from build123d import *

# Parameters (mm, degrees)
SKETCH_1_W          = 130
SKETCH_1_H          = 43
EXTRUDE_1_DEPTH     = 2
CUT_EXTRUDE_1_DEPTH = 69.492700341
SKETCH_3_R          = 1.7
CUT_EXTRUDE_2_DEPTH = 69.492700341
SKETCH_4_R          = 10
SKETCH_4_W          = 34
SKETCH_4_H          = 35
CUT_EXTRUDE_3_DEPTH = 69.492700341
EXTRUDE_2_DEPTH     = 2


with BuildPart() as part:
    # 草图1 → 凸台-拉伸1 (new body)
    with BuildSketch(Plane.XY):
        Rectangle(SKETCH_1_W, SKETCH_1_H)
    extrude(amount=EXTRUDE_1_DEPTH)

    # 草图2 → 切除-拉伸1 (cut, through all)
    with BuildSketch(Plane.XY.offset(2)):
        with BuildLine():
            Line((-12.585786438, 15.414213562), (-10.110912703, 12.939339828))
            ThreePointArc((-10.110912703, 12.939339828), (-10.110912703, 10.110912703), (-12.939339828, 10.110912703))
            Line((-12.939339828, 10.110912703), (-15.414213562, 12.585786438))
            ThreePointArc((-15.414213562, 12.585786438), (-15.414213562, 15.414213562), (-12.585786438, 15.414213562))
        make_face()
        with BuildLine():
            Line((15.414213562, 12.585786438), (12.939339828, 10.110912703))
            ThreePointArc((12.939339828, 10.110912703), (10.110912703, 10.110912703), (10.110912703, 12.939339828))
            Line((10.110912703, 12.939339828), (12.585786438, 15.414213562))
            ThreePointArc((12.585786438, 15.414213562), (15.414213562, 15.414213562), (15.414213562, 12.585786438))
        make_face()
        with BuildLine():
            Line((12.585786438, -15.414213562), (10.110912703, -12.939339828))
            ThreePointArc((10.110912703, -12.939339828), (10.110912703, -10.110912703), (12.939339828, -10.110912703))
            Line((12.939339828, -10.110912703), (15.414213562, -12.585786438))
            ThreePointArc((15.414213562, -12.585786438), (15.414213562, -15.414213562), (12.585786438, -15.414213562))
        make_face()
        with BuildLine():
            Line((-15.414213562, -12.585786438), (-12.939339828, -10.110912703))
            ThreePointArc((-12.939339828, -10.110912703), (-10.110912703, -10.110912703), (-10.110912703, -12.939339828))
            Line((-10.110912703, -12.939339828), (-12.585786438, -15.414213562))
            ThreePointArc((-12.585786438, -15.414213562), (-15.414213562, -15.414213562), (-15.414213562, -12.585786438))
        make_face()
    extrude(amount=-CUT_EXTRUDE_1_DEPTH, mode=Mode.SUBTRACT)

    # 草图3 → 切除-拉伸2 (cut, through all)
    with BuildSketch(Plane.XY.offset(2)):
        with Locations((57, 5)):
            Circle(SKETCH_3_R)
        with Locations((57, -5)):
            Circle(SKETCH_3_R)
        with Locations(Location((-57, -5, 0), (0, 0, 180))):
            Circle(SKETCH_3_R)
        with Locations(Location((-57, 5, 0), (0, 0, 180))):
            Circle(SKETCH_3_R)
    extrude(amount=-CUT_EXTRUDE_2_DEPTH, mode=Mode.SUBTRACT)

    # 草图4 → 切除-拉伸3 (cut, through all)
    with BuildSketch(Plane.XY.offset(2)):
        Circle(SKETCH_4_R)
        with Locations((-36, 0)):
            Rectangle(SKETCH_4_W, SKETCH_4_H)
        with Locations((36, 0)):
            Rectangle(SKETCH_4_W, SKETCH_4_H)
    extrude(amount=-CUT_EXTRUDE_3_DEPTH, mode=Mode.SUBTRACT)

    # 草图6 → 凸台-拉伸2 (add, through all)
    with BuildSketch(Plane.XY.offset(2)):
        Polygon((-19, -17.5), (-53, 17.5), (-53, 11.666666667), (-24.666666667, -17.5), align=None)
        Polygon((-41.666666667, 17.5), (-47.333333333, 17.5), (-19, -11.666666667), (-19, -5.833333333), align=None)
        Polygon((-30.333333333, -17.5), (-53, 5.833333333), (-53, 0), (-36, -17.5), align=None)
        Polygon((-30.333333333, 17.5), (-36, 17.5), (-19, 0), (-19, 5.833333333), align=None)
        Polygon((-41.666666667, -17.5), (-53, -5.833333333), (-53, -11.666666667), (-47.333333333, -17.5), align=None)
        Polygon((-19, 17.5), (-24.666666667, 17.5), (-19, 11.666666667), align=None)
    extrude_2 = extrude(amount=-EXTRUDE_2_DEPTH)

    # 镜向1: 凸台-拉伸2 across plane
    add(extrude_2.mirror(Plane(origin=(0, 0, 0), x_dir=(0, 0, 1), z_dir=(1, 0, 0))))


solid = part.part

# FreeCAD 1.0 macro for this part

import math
import FreeCAD as App
import Part
import Sketcher

doc = App.newDocument("Part")
body = doc.addObject("PartDesign::Body", "Body")

# Sketch on XY plane
sketch1 = doc.addObject("Sketcher::SketchObject", "Sketch")
body.addObject(sketch1)
sketch1.AttachmentSupport = (doc.XY_Plane, [""])
sketch1.MapMode = "FlatFace"
sketch1.addGeometry([
    Part.LineSegment(App.Vector(-65, 22, 0), App.Vector(-65, -22, 0)),
    Part.LineSegment(App.Vector(-65, -22, 0), App.Vector(65, -22, 0)),
    Part.LineSegment(App.Vector(65, -22, 0), App.Vector(65, 22, 0)),
    Part.LineSegment(App.Vector(65, 22, 0), App.Vector(-65, 22, 0)),
], False)
sketch1.addConstraint([
    Sketcher.Constraint("Coincident", 0, 2, 1, 1),
    Sketcher.Constraint("Coincident", 1, 2, 2, 1),
    Sketcher.Constraint("Coincident", 2, 2, 3, 1),
    Sketcher.Constraint("Coincident", 3, 2, 0, 1),
    Sketcher.Constraint("Vertical", 0),
    Sketcher.Constraint("Horizontal", 1),
    Sketcher.Constraint("Vertical", 2),
    Sketcher.Constraint("Horizontal", 3),
    Sketcher.Constraint("Symmetric", 0, 2, 2, 2, -1, 1),
    Sketcher.Constraint("DistanceX", 1, 1, 1, 2, 130.0),
    Sketcher.Constraint("DistanceY", 0, 2, 0, 1, 43.0),
])
pad1 = doc.addObject("PartDesign::Pad", "Pad")
body.addObject(pad1)
pad1.Profile = sketch1
pad1.Length = 2

# Sketch on XY plane
sketch2 = doc.addObject("Sketcher::SketchObject", "Sketch001")
body.addObject(sketch2)
sketch2.AttachmentSupport = (doc.XY_Plane, [""])
sketch2.MapMode = "FlatFace"
sketch2.AttachmentOffset = App.Placement(App.Vector(0, 0, 2), App.Rotation())
sketch2.addGeometry([
    Part.LineSegment(App.Vector(-10.1, 12.9, 0), App.Vector(-12.6, 15.4, 0)),  # 0
    Part.ArcOfCircle(Part.Circle(App.Vector(-14, 14, 0), App.Vector(0, 0, 1), 2), math.radians(45), math.radians(225)),  # 1
    Part.LineSegment(App.Vector(-15.4, 12.6, 0), App.Vector(-12.9, 10.1, 0)),  # 2
    Part.ArcOfCircle(Part.Circle(App.Vector(-11.5, 11.5, 0), App.Vector(0, 0, 1), 2), math.radians(-135), math.radians(45)),  # 3
    Part.LineSegment(App.Vector(12.9, 10.1, 0), App.Vector(15.4, 12.6, 0)),  # 4
    Part.ArcOfCircle(Part.Circle(App.Vector(14, 14, 0), App.Vector(0, 0, 1), 2), math.radians(-45), math.radians(135)),  # 5
    Part.LineSegment(App.Vector(12.6, 15.4, 0), App.Vector(10.1, 12.9, 0)),  # 6
    Part.ArcOfCircle(Part.Circle(App.Vector(11.5, 11.5, 0), App.Vector(0, 0, 1), 2), math.radians(135), math.radians(315)),  # 7
    Part.LineSegment(App.Vector(10.1, -12.9, 0), App.Vector(12.6, -15.4, 0)),  # 8
    Part.ArcOfCircle(Part.Circle(App.Vector(14, -14, 0), App.Vector(0, 0, 1), 2), math.radians(-135), math.radians(45)),  # 9
    Part.LineSegment(App.Vector(15.4, -12.6, 0), App.Vector(12.9, -10.1, 0)),  # 10
    Part.ArcOfCircle(Part.Circle(App.Vector(11.5, -11.5, 0), App.Vector(0, 0, 1), 2), math.radians(45), math.radians(225)),  # 11
    Part.LineSegment(App.Vector(-12.9, -10.1, 0), App.Vector(-15.4, -12.6, 0)),  # 12
    Part.ArcOfCircle(Part.Circle(App.Vector(-14, -14, 0), App.Vector(0, 0, 1), 2), math.radians(135), math.radians(315)),  # 13
    Part.LineSegment(App.Vector(-12.6, -15.4, 0), App.Vector(-10.1, -12.9, 0)),  # 14
    Part.ArcOfCircle(Part.Circle(App.Vector(-11.5, -11.5, 0), App.Vector(0, 0, 1), 2), math.radians(-45), math.radians(135)),  # 15
], False)
sketch2.addConstraint([
    Sketcher.Constraint("Tangent", 0, 2, 1, 1),
    Sketcher.Constraint("Tangent", 1, 2, 2, 1),
    Sketcher.Constraint("Tangent", 2, 2, 3, 1),
    Sketcher.Constraint("Tangent", 3, 2, 0, 1),
    Sketcher.Constraint("Tangent", 4, 2, 5, 1),
    Sketcher.Constraint("Tangent", 5, 2, 6, 1),
    Sketcher.Constraint("Tangent", 6, 2, 7, 1),
    Sketcher.Constraint("Tangent", 7, 2, 4, 1),
    Sketcher.Constraint("Tangent", 8, 2, 9, 1),
    Sketcher.Constraint("Tangent", 9, 2, 10, 1),
    Sketcher.Constraint("Tangent", 10, 2, 11, 1),
    Sketcher.Constraint("Tangent", 11, 2, 8, 1),
    Sketcher.Constraint("Tangent", 12, 2, 13, 1),
    Sketcher.Constraint("Tangent", 13, 2, 14, 1),
    Sketcher.Constraint("Tangent", 14, 2, 15, 1),
    Sketcher.Constraint("Tangent", 15, 2, 12, 1),
    Sketcher.Constraint("Equal", 1, 3),
    Sketcher.Constraint("Equal", 3, 5),
    Sketcher.Constraint("Equal", 5, 7),
    Sketcher.Constraint("Equal", 7, 9),
    Sketcher.Constraint("Equal", 9, 11),
    Sketcher.Constraint("Equal", 11, 13),
    Sketcher.Constraint("Equal", 13, 15),
    Sketcher.Constraint("Symmetric", 1, 3, 9, 3, -1, 1),
    Sketcher.Constraint("Symmetric", 3, 3, 11, 3, -1, 1),
    Sketcher.Constraint("Symmetric", 5, 3, 13, 3, -1, 1),
    Sketcher.Constraint("Symmetric", 7, 3, 15, 3, -1, 1),
    Sketcher.Constraint("Symmetric", 1, 3, 5, 3, -2),
    Sketcher.Constraint("Symmetric", 3, 3, 7, 3, -2),
    Sketcher.Constraint("Perpendicular", 2, 4),
    Sketcher.Constraint("Radius", 1, 2.0),
    Sketcher.Constraint("DistanceX", 1, 3, -1, 1, 14.0),
    Sketcher.Constraint("DistanceY", -1, 1, 1, 3, 14.0),
    Sketcher.Constraint("Distance", 0, 3.5),
])
pocket1 = doc.addObject("PartDesign::Pocket", "Pocket")
body.addObject(pocket1)
pocket1.Profile = sketch2
pocket1.Type = "ThroughAll"

# Sketch on XY plane
sketch3 = doc.addObject("Sketcher::SketchObject", "Sketch002")
body.addObject(sketch3)
sketch3.AttachmentSupport = (doc.XY_Plane, [""])
sketch3.MapMode = "FlatFace"
sketch3.AttachmentOffset = App.Placement(App.Vector(0, 0, 2), App.Rotation())
sketch3.addGeometry([
    Part.Circle(App.Vector(57, 5, 0), App.Vector(0, 0, 1), 1.7),
    Part.Circle(App.Vector(57, -5, 0), App.Vector(0, 0, 1), 1.7),
    Part.Circle(App.Vector(-57, -5, 0), App.Vector(0, 0, 1), 1.7),
    Part.Circle(App.Vector(-57, 5, 0), App.Vector(0, 0, 1), 1.7),
], False)
sketch3.addConstraint([
    Sketcher.Constraint("Equal", 0, 1),
    Sketcher.Constraint("Equal", 1, 2),
    Sketcher.Constraint("Equal", 2, 3),
    Sketcher.Constraint("Symmetric", 0, 3, 2, 3, -1, 1),
    Sketcher.Constraint("Symmetric", 1, 3, 3, 3, -1, 1),
    Sketcher.Constraint("Symmetric", 1, 3, 2, 3, -2),
    Sketcher.Constraint("Diameter", 0, 3.4),
    Sketcher.Constraint("DistanceX", -1, 1, 0, 3, 57.0),
    Sketcher.Constraint("DistanceY", -1, 1, 0, 3, 5.0),
])
pocket2 = doc.addObject("PartDesign::Pocket", "Pocket001")
body.addObject(pocket2)
pocket2.Profile = sketch3
pocket2.Type = "ThroughAll"

# Sketch on XY plane
sketch4 = doc.addObject("Sketcher::SketchObject", "Sketch003")
body.addObject(sketch4)
sketch4.AttachmentSupport = (doc.XY_Plane, [""])
sketch4.MapMode = "FlatFace"
sketch4.AttachmentOffset = App.Placement(App.Vector(0, 0, 2), App.Rotation())
sketch4.addGeometry([
    Part.Circle(App.Vector(0, 0, 0), App.Vector(0, 0, 1), 10),  # 0
    Part.LineSegment(App.Vector(-53, 18, 0), App.Vector(-53, -18, 0)),  # 1
    Part.LineSegment(App.Vector(-53, -18, 0), App.Vector(-19, -18, 0)),  # 2
    Part.LineSegment(App.Vector(-19, -18, 0), App.Vector(-19, 18, 0)),  # 3
    Part.LineSegment(App.Vector(-19, 18, 0), App.Vector(-53, 18, 0)),  # 4
    Part.LineSegment(App.Vector(19, 18, 0), App.Vector(19, -18, 0)),  # 5
    Part.LineSegment(App.Vector(19, -18, 0), App.Vector(53, -18, 0)),  # 6
    Part.LineSegment(App.Vector(53, -18, 0), App.Vector(53, 18, 0)),  # 7
    Part.LineSegment(App.Vector(53, 18, 0), App.Vector(19, 18, 0)),  # 8
], False)
sketch4.addConstraint([
    Sketcher.Constraint("Coincident", 1, 2, 2, 1),
    Sketcher.Constraint("Coincident", 2, 2, 3, 1),
    Sketcher.Constraint("Coincident", 3, 2, 4, 1),
    Sketcher.Constraint("Coincident", 4, 2, 1, 1),
    Sketcher.Constraint("Coincident", 5, 2, 6, 1),
    Sketcher.Constraint("Coincident", 6, 2, 7, 1),
    Sketcher.Constraint("Coincident", 7, 2, 8, 1),
    Sketcher.Constraint("Coincident", 8, 2, 5, 1),
    Sketcher.Constraint("Vertical", 1),
    Sketcher.Constraint("Horizontal", 2),
    Sketcher.Constraint("Vertical", 3),
    Sketcher.Constraint("Horizontal", 4),
    Sketcher.Constraint("Vertical", 5),
    Sketcher.Constraint("Horizontal", 6),
    Sketcher.Constraint("Vertical", 7),
    Sketcher.Constraint("Horizontal", 8),
    Sketcher.Constraint("Coincident", 0, 3, -1, 1),
    Sketcher.Constraint("Symmetric", 3, 2, 5, 2, -1, 1),
    Sketcher.Constraint("Symmetric", 1, 2, 7, 2, -1, 1),
    Sketcher.Constraint("Horizontal", 2, 2, 5, 2),
    Sketcher.Constraint("Diameter", 0, 20.0),
    Sketcher.Constraint("DistanceX", 2, 1, 2, 2, 34.0),
    Sketcher.Constraint("DistanceY", 1, 2, 1, 1, 35.0),
    Sketcher.Constraint("DistanceX", 1, 2, -1, 1, 53.0),
])
pocket3 = doc.addObject("PartDesign::Pocket", "Pocket002")
body.addObject(pocket3)
pocket3.Profile = sketch4
pocket3.Type = "ThroughAll"

# Sketch on XY plane
sketch5 = doc.addObject("Sketcher::SketchObject", "Sketch004")
body.addObject(sketch5)
sketch5.AttachmentSupport = (doc.XY_Plane, [""])
sketch5.MapMode = "FlatFace"
sketch5.AttachmentOffset = App.Placement(App.Vector(0, 0, 2), App.Rotation())
sketch5.addGeometry([
    Part.LineSegment(App.Vector(-19, -18, 0), App.Vector(-53, 18, 0)),  # 0
    Part.LineSegment(App.Vector(-53, 18, 0), App.Vector(-53, 12, 0)),  # 1
    Part.LineSegment(App.Vector(-53, 12, 0), App.Vector(-25, -18, 0)),  # 2
    Part.LineSegment(App.Vector(-25, -18, 0), App.Vector(-19, -18, 0)),  # 3
    Part.LineSegment(App.Vector(-42, 18, 0), App.Vector(-47, 18, 0)),  # 4
    Part.LineSegment(App.Vector(-47, 18, 0), App.Vector(-19, -12, 0)),  # 5
    Part.LineSegment(App.Vector(-19, -12, 0), App.Vector(-19, -6, 0)),  # 6
    Part.LineSegment(App.Vector(-19, -6, 0), App.Vector(-42, 18, 0)),  # 7
    Part.LineSegment(App.Vector(-30, -18, 0), App.Vector(-53, 6, 0)),  # 8
    Part.LineSegment(App.Vector(-53, 6, 0), App.Vector(-53, 0, 0)),  # 9
    Part.LineSegment(App.Vector(-53, 0, 0), App.Vector(-36, -18, 0)),  # 10
    Part.LineSegment(App.Vector(-36, -18, 0), App.Vector(-30, -18, 0)),  # 11
    Part.LineSegment(App.Vector(-30, 18, 0), App.Vector(-36, 18, 0)),  # 12
    Part.LineSegment(App.Vector(-36, 18, 0), App.Vector(-19, 0, 0)),  # 13
    Part.LineSegment(App.Vector(-19, 0, 0), App.Vector(-19, 6, 0)),  # 14
    Part.LineSegment(App.Vector(-19, 6, 0), App.Vector(-30, 18, 0)),  # 15
    Part.LineSegment(App.Vector(-42, -18, 0), App.Vector(-53, -6, 0)),  # 16
    Part.LineSegment(App.Vector(-53, -6, 0), App.Vector(-53, -12, 0)),  # 17
    Part.LineSegment(App.Vector(-53, -12, 0), App.Vector(-47, -18, 0)),  # 18
    Part.LineSegment(App.Vector(-47, -18, 0), App.Vector(-42, -18, 0)),  # 19
    Part.LineSegment(App.Vector(-19, 18, 0), App.Vector(-25, 18, 0)),  # 20
    Part.LineSegment(App.Vector(-25, 18, 0), App.Vector(-19, 12, 0)),  # 21
    Part.LineSegment(App.Vector(-19, 12, 0), App.Vector(-19, 18, 0)),  # 22
], False)
sketch5.addConstraint([
    Sketcher.Constraint("Coincident", 0, 2, 1, 1),
    Sketcher.Constraint("Coincident", 1, 2, 2, 1),
    Sketcher.Constraint("Coincident", 2, 2, 3, 1),
    Sketcher.Constraint("Coincident", 3, 2, 0, 1),
    Sketcher.Constraint("Coincident", 4, 2, 5, 1),
    Sketcher.Constraint("Coincident", 5, 2, 6, 1),
    Sketcher.Constraint("Coincident", 6, 2, 7, 1),
    Sketcher.Constraint("Coincident", 7, 2, 4, 1),
    Sketcher.Constraint("Coincident", 8, 2, 9, 1),
    Sketcher.Constraint("Coincident", 9, 2, 10, 1),
    Sketcher.Constraint("Coincident", 10, 2, 11, 1),
    Sketcher.Constraint("Coincident", 11, 2, 8, 1),
    Sketcher.Constraint("Coincident", 12, 2, 13, 1),
    Sketcher.Constraint("Coincident", 13, 2, 14, 1),
    Sketcher.Constraint("Coincident", 14, 2, 15, 1),
    Sketcher.Constraint("Coincident", 15, 2, 12, 1),
    Sketcher.Constraint("Coincident", 16, 2, 17, 1),
    Sketcher.Constraint("Coincident", 17, 2, 18, 1),
    Sketcher.Constraint("Coincident", 18, 2, 19, 1),
    Sketcher.Constraint("Coincident", 19, 2, 16, 1),
    Sketcher.Constraint("Coincident", 20, 2, 21, 1),
    Sketcher.Constraint("Coincident", 21, 2, 22, 1),
    Sketcher.Constraint("Coincident", 22, 2, 20, 1),
    Sketcher.Constraint("Vertical", 1),
    Sketcher.Constraint("Horizontal", 3),
    Sketcher.Constraint("Horizontal", 4),
    Sketcher.Constraint("Vertical", 6),
    Sketcher.Constraint("Vertical", 9),
    Sketcher.Constraint("Horizontal", 11),
    Sketcher.Constraint("Horizontal", 12),
    Sketcher.Constraint("Vertical", 14),
    Sketcher.Constraint("Vertical", 17),
    Sketcher.Constraint("Horizontal", 19),
    Sketcher.Constraint("Horizontal", 20),
    Sketcher.Constraint("Vertical", 22),
    Sketcher.Constraint("Symmetric", 10, 2, 12, 2, -1),
    Sketcher.Constraint("Symmetric", 6, 2, 14, 2, -1),
    Sketcher.Constraint("Symmetric", 8, 2, 16, 2, -1),
    Sketcher.Constraint("Symmetric", 1, 2, 17, 2, -1),
    Sketcher.Constraint("Symmetric", 4, 2, 18, 2, -1),
    Sketcher.Constraint("Symmetric", 2, 2, 20, 2, -1),
    Sketcher.Constraint("Symmetric", 5, 2, 21, 2, -1),
    Sketcher.Constraint("PointOnObject", 9, 2, -1),
    Sketcher.Constraint("PointOnObject", 13, 2, -1),
    Sketcher.Constraint("Parallel", 0, 2),
    Sketcher.Constraint("Parallel", 2, 5),
    Sketcher.Constraint("Parallel", 5, 7),
    Sketcher.Constraint("Parallel", 7, 8),
    Sketcher.Constraint("Parallel", 8, 10),
    Sketcher.Constraint("Parallel", 10, 13),
    Sketcher.Constraint("Parallel", 13, 15),
    Sketcher.Constraint("Parallel", 15, 16),
    Sketcher.Constraint("Parallel", 16, 18),
    Sketcher.Constraint("Parallel", 18, 21),
    Sketcher.Constraint("Horizontal", 0, 2, 4, 2),
    Sketcher.Constraint("Horizontal", 3, 2, 10, 2),
    Sketcher.Constraint("Horizontal", 8, 2, 14, 2),
    Sketcher.Constraint("Equal", 3, 4),
    Sketcher.Constraint("Equal", 4, 11),
    Sketcher.Constraint("DistanceX", 0, 2, -1, 1, 53.0),
    Sketcher.Constraint("DistanceX", 3, 2, -1, 1, 19.0),
    Sketcher.Constraint("DistanceY", 2, 2, 0, 2, 35.0),
])
pad2 = doc.addObject("PartDesign::Pad", "Pad001")
body.addObject(pad2)
pad2.Profile = sketch5
pad2.Length = 2
pad2.Reversed = True
doc.recompute()

mirrored = doc.addObject("PartDesign::Mirrored", "Mirrored")
body.addObject(mirrored)
mirrored.Originals = [pad2]
mirrored.MirrorPlane = (doc.YZ_Plane, [""])
body.Tip = mirrored

doc.recompute()
